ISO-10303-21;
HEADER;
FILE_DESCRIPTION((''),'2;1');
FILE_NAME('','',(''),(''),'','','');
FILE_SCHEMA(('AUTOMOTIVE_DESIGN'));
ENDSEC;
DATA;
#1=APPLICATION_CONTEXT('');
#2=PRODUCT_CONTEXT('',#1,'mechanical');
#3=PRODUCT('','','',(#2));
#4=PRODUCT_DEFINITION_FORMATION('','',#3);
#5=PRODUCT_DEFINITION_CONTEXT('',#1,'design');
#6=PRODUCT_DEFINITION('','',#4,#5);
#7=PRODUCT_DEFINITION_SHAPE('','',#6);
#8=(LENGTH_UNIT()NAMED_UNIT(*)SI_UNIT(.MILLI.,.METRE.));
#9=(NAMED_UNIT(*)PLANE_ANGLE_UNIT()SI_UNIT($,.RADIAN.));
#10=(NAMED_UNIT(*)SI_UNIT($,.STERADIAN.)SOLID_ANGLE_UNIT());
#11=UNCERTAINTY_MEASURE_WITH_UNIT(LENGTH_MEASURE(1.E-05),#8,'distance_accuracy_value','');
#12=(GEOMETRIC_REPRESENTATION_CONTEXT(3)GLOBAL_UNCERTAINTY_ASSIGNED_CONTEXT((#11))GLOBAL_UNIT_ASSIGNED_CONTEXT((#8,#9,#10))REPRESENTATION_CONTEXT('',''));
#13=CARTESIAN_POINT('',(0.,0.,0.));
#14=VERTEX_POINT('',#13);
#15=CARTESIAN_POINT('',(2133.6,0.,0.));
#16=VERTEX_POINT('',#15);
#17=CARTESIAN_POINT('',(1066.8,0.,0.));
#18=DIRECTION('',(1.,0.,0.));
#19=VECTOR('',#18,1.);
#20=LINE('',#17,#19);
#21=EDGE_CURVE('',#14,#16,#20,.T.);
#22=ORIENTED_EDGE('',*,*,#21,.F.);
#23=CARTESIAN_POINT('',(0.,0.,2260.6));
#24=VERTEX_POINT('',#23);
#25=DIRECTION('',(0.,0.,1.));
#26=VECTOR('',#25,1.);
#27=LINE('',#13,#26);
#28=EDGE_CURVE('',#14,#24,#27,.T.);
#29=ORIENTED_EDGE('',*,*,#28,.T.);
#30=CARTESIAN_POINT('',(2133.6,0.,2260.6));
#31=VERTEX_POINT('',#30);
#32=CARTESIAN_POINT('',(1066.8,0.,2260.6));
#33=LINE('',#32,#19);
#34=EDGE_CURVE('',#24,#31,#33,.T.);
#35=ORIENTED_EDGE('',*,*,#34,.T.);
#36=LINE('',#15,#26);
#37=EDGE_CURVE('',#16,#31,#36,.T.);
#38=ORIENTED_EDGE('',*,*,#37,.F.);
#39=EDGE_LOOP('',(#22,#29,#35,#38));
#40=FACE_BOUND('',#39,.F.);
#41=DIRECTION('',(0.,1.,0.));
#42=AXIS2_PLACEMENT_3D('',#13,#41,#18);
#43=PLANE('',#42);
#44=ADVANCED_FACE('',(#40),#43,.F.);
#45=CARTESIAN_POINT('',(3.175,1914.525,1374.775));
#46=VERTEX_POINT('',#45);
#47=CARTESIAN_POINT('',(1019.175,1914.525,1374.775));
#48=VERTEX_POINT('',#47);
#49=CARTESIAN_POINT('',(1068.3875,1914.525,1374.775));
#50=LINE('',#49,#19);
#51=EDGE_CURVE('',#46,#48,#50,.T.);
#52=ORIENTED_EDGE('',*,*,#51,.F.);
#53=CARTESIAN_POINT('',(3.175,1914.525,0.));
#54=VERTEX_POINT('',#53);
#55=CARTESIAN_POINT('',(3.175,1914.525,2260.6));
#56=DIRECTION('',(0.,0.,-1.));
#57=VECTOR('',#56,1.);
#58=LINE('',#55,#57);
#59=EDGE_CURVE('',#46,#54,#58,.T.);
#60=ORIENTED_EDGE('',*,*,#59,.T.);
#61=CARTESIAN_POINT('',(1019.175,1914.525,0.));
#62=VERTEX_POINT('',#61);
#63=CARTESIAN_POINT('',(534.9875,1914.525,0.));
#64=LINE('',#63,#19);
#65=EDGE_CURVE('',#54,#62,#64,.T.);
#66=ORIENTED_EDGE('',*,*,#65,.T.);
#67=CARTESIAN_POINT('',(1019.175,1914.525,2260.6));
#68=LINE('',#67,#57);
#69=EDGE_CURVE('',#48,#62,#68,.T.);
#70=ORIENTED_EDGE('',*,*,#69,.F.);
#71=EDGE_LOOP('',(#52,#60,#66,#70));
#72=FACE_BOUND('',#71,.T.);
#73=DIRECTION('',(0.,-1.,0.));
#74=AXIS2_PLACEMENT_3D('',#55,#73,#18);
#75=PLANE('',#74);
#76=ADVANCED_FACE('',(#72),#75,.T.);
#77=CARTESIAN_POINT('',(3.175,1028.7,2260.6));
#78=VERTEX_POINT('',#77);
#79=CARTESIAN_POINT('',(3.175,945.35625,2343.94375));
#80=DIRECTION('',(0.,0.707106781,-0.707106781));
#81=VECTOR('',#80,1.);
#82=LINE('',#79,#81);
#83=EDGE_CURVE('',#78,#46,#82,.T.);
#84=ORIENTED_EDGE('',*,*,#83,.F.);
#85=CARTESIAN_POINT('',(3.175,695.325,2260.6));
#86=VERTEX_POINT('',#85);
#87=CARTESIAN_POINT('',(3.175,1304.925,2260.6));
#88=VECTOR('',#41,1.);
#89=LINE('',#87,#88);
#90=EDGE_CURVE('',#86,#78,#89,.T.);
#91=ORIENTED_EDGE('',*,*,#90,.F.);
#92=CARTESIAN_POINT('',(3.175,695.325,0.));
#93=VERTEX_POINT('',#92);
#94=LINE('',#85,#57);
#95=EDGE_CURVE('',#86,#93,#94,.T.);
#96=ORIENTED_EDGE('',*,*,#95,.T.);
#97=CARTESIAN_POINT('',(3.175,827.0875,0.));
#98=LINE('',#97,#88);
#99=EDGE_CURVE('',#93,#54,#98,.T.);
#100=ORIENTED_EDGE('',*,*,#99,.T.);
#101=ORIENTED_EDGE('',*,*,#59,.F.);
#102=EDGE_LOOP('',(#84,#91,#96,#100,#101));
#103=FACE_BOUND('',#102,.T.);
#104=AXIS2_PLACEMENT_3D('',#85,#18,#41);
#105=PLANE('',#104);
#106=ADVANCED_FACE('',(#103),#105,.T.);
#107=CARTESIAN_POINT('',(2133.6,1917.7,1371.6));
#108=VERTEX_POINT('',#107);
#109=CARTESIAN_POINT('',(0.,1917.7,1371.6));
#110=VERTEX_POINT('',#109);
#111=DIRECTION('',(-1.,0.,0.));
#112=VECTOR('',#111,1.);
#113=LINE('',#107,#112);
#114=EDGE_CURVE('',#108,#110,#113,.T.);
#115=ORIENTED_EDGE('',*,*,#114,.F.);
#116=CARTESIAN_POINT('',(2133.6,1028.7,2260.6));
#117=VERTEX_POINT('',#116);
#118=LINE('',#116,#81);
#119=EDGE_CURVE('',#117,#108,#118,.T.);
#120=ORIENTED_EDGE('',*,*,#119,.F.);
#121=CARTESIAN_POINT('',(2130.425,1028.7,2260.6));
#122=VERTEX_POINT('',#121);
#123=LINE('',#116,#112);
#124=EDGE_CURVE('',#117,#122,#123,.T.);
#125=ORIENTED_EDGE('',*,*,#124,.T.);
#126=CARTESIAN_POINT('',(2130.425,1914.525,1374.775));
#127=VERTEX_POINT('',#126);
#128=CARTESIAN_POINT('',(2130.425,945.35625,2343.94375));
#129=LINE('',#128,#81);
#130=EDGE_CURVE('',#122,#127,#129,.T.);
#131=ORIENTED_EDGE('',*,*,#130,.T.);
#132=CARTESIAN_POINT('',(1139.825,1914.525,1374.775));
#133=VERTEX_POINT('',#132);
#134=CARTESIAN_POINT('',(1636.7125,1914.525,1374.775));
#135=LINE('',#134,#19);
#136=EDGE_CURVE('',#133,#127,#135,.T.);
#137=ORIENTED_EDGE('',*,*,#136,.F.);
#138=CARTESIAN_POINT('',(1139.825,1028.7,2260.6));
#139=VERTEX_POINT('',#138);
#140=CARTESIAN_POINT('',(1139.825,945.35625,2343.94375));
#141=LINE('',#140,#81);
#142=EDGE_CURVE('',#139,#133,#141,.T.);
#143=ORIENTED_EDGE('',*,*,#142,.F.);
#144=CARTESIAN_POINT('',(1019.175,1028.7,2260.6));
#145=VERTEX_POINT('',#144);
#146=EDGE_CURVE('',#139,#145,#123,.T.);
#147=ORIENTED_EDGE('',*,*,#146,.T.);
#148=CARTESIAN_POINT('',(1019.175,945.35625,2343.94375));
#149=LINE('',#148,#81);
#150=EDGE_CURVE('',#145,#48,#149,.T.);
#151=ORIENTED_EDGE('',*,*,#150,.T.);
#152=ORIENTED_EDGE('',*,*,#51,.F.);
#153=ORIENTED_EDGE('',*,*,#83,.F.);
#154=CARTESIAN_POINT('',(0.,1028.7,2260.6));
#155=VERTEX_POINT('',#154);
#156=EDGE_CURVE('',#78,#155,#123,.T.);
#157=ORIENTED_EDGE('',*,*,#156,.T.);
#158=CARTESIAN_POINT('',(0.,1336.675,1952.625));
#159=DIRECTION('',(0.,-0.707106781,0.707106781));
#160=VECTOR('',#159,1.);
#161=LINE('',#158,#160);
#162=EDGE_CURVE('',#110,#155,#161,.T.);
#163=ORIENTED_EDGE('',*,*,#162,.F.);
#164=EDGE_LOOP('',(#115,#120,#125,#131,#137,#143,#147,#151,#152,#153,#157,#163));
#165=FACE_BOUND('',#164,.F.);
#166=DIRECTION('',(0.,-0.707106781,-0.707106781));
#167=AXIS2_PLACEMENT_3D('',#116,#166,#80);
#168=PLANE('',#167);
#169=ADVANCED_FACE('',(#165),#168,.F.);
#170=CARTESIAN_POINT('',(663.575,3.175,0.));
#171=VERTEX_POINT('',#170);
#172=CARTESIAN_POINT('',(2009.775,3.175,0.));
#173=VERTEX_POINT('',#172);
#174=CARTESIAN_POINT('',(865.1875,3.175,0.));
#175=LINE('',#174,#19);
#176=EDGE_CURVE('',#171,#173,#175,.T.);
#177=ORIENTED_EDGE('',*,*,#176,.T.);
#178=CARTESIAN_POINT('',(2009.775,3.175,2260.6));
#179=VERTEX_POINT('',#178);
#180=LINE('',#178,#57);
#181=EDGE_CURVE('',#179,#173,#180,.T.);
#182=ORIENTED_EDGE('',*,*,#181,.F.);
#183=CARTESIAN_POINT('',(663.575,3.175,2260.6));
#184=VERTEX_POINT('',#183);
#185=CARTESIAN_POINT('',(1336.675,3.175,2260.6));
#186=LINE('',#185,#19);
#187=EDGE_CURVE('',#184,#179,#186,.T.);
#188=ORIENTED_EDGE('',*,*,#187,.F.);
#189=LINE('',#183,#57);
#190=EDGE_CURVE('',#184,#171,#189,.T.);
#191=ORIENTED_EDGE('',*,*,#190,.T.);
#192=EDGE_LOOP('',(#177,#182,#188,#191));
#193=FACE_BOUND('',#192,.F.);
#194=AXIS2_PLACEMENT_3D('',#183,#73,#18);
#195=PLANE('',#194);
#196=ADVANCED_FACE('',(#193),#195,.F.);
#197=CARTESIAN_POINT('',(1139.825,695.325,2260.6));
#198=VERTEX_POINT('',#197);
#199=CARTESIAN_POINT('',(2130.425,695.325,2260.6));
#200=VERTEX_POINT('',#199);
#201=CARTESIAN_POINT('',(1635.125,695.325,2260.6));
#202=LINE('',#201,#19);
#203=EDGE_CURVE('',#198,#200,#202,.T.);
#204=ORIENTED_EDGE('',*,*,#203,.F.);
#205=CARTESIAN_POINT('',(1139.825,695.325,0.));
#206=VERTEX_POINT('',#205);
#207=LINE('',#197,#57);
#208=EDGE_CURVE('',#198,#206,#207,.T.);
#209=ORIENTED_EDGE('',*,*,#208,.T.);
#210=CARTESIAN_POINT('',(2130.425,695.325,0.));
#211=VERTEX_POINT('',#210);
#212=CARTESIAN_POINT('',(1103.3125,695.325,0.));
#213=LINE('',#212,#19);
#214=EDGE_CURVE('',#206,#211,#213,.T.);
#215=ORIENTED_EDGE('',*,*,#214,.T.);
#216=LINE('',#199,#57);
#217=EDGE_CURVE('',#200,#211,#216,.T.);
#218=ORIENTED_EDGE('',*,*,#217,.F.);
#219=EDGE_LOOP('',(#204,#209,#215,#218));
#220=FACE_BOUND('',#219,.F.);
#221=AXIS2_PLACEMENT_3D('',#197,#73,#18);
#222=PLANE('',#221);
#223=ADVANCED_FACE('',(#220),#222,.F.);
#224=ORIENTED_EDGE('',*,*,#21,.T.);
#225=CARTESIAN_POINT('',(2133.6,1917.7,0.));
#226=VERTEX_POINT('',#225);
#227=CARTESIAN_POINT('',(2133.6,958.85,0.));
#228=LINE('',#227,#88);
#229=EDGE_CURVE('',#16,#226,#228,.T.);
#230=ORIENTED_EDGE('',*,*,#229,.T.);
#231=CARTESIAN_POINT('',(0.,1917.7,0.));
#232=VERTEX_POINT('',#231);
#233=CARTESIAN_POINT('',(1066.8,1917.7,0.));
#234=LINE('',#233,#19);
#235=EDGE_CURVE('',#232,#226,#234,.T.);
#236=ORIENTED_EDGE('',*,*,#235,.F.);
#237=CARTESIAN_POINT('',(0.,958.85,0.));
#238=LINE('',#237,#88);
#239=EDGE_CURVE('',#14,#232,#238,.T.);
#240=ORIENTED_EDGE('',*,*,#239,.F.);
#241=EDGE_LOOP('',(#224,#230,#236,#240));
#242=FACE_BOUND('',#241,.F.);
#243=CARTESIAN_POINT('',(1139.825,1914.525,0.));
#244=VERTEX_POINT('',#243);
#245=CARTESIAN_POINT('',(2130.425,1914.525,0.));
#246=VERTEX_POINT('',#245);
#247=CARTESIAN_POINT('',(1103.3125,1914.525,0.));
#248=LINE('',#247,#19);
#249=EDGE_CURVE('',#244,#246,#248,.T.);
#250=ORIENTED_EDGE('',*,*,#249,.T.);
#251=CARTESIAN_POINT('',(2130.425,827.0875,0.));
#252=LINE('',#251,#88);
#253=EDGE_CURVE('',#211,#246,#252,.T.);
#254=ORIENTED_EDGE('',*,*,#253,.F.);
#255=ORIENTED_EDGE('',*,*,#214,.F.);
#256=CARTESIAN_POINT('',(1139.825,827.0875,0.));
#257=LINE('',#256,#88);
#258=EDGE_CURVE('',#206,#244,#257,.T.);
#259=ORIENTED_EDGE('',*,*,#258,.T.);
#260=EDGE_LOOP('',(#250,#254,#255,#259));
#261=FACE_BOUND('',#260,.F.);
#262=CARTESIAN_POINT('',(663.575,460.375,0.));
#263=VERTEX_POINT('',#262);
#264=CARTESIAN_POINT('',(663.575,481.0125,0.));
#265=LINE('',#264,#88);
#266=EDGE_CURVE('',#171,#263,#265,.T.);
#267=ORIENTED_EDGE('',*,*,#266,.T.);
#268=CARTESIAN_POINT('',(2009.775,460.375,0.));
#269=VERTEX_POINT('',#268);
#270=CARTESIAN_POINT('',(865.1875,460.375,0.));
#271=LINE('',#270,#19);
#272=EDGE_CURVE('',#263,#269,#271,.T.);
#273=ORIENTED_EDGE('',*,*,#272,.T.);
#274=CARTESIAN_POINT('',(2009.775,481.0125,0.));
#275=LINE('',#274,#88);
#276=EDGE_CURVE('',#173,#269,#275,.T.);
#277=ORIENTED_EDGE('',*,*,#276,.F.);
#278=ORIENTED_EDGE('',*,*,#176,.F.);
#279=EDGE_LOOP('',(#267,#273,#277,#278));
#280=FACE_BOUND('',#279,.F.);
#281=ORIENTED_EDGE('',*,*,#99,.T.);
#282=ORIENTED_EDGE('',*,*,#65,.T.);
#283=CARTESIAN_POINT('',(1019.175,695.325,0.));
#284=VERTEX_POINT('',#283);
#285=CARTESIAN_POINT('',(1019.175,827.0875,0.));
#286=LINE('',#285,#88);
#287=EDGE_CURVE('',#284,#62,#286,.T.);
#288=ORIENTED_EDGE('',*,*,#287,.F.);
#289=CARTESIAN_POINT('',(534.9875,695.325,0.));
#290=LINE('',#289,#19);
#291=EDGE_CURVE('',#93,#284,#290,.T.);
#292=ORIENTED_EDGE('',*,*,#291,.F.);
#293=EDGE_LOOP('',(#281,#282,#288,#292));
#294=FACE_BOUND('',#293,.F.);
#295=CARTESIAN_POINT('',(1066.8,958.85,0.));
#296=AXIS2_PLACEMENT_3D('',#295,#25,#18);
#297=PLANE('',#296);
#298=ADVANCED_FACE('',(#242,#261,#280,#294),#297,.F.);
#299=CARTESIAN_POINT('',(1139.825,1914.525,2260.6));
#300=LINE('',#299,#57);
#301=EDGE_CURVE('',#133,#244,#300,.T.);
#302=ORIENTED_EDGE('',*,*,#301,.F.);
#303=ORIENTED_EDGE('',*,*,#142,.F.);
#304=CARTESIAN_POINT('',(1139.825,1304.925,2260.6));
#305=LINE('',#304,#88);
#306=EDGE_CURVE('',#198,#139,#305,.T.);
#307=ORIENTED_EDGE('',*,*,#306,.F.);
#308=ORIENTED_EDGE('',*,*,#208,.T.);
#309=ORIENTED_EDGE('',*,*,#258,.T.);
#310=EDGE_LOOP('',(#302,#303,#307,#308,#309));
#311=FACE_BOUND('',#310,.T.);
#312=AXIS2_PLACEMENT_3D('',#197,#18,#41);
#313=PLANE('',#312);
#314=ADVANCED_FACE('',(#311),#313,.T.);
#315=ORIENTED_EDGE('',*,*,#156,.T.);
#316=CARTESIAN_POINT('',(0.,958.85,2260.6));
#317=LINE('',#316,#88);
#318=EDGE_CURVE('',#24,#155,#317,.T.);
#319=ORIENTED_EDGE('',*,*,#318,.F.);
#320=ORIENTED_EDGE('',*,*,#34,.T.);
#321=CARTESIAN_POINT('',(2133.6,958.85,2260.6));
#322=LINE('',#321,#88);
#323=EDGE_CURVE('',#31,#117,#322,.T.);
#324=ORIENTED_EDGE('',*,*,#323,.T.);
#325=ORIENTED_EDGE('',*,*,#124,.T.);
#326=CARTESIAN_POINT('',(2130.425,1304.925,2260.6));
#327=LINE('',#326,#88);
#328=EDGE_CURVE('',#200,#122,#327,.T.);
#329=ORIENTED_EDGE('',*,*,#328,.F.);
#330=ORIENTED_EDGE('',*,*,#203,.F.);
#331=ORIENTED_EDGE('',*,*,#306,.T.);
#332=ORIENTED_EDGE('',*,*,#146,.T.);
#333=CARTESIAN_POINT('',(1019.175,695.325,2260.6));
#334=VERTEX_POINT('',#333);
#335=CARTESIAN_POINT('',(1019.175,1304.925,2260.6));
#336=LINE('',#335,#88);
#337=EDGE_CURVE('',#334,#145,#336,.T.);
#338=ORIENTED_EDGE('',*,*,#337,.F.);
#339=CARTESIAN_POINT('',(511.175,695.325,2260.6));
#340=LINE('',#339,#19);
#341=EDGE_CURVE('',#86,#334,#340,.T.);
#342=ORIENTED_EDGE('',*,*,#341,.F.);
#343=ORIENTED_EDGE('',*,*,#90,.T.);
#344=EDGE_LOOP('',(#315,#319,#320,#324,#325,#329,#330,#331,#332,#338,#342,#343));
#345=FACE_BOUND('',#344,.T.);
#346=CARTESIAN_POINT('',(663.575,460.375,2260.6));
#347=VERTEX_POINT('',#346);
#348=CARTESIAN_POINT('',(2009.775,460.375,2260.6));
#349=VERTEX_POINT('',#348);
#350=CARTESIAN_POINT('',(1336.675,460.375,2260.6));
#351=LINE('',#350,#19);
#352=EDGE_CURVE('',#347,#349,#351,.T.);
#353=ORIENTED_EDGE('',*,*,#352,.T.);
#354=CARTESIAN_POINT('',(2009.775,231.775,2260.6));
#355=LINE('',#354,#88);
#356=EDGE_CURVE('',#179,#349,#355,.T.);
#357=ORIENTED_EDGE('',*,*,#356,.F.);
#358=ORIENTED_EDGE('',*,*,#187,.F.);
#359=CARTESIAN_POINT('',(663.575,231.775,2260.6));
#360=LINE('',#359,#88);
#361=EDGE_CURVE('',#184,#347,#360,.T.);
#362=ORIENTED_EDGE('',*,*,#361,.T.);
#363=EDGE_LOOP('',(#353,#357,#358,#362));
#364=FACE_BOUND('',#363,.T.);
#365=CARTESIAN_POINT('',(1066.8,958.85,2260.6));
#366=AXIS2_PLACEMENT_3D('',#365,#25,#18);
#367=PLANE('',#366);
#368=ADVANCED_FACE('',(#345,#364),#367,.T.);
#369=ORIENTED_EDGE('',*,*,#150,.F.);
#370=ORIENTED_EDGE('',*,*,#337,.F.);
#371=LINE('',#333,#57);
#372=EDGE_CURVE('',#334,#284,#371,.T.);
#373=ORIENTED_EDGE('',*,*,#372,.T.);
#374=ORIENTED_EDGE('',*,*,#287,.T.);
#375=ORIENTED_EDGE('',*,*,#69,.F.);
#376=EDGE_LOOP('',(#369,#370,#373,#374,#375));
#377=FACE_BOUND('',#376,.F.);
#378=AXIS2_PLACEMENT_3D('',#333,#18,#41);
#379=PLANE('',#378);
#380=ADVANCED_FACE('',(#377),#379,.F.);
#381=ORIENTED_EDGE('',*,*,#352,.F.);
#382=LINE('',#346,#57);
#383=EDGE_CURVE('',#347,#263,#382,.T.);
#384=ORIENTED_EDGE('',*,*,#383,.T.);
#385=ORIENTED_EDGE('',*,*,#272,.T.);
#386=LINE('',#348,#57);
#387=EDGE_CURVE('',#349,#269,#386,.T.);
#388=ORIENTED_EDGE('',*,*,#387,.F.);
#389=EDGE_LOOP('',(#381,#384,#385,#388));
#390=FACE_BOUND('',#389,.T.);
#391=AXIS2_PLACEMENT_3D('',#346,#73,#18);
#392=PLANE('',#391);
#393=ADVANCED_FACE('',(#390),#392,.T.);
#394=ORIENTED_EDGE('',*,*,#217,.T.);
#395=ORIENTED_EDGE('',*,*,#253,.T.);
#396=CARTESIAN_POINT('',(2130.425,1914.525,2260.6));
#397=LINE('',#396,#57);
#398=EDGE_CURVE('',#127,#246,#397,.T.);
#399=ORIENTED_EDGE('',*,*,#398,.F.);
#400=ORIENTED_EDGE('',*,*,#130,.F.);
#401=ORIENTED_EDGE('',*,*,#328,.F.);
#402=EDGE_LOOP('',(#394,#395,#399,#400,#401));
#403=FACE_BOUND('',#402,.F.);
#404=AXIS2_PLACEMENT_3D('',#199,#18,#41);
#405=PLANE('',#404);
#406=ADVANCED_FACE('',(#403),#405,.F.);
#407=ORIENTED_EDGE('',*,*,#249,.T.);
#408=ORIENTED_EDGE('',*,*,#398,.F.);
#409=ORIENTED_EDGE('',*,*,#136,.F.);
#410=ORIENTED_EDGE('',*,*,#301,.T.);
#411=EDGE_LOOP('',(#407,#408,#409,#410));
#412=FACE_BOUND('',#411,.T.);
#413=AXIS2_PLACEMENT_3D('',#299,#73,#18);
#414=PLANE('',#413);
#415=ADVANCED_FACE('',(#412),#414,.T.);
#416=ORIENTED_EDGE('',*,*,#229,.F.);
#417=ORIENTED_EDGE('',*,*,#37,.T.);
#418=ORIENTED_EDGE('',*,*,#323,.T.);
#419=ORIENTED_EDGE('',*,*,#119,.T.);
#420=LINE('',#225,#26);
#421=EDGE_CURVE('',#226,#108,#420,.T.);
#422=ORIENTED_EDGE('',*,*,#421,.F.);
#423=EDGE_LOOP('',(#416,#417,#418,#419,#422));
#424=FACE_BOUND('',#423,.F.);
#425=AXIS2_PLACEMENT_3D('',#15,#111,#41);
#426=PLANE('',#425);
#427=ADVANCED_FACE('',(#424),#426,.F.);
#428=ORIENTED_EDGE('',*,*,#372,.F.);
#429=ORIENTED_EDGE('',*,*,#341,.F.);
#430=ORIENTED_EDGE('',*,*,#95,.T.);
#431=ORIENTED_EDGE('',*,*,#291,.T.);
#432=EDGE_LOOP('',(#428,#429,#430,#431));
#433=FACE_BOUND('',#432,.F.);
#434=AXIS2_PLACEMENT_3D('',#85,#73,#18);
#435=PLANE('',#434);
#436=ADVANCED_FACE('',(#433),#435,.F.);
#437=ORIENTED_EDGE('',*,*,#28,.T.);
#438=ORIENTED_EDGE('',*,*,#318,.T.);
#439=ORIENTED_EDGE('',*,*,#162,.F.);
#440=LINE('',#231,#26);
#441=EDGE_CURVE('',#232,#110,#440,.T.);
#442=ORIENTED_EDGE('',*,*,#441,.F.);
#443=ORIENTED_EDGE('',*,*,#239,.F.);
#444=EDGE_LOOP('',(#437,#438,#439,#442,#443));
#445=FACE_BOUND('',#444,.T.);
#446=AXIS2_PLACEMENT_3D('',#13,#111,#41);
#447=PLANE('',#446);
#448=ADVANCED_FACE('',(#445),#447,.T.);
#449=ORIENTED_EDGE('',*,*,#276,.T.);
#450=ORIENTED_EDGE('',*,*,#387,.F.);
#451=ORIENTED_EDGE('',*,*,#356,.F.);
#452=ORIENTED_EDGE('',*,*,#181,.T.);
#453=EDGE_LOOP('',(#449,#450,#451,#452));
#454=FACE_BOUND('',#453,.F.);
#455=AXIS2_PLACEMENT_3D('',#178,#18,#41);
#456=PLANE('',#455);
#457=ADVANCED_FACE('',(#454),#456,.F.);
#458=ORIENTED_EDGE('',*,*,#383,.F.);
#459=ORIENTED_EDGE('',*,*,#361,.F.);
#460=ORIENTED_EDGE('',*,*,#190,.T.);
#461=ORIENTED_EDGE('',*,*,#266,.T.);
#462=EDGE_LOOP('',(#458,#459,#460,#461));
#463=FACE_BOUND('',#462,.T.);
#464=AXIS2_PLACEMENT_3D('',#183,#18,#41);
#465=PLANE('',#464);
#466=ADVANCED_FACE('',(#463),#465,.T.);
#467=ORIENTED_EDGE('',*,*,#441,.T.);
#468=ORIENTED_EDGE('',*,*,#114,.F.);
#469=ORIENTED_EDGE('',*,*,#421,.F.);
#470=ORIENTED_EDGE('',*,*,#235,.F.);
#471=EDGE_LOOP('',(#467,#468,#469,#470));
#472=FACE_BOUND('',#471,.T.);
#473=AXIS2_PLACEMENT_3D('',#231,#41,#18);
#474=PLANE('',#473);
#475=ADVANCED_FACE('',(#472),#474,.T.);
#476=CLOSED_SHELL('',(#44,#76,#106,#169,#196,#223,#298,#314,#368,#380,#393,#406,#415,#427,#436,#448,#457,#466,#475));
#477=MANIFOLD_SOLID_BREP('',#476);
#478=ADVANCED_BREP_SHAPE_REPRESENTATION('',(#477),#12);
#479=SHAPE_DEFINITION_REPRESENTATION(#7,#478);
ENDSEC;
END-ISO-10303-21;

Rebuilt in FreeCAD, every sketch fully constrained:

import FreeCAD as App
import Part
import Sketcher

V = App.Vector
Q = App.Units.Quantity


def add_polygon(sketch, points):
    """Adds a closed chain of lines whose ends are joined by coincident constraints."""
    first, n = sketch.GeometryCount, len(points)
    for a, b in zip(points, points[1:] + points[:1]):
        sketch.addGeometry(Part.LineSegment(App.Vector(*a, 0), App.Vector(*b, 0)), False)
    for i in range(n):
        sketch.addConstraint(Sketcher.Constraint("Coincident", first + i, 2, first + (i + 1) % n, 1))

doc = App.newDocument("Part")
body = doc.addObject("PartDesign::Body", "Body")

sketch1 = body.newObject("Sketcher::SketchObject", "Sketch")
sketch1.AttachmentSupport = (doc.getObject("XY_Plane"), [""])
sketch1.MapMode = "FlatFace"
add_polygon(sketch1, [(0, 1918), (0, 0), (2134, 0), (2134, 1918)])
sketch1.addConstraint(Sketcher.Constraint("Vertical", 0))
sketch1.addConstraint(Sketcher.Constraint("Horizontal", 1))
sketch1.addConstraint(Sketcher.Constraint("Vertical", 2))
sketch1.addConstraint(Sketcher.Constraint("Horizontal", 3))
sketch1.addConstraint(Sketcher.Constraint("Coincident", 0, 2, -1, 1))
sketch1.addConstraint(Sketcher.Constraint("DistanceX", 1, 1, 1, 2, Q("84 in")))
sketch1.addConstraint(Sketcher.Constraint("DistanceY", 0, 2, 0, 1, Q("75.5 in")))
pad1 = body.newObject("PartDesign::Pad", "Pad")
pad1.Profile = sketch1
pad1.Length = Q("89 in")

sketch2 = body.newObject("Sketcher::SketchObject", "Sketch001")
sketch2.AttachmentSupport = (doc.getObject("XY_Plane"), [""])
sketch2.MapMode = "FlatFace"
sketch2.AttachmentOffset = App.Placement(V(0, 0, 89 * 25.4), App.Rotation())
add_polygon(sketch2, [(1140, 1915), (1140, 695), (2130, 695), (2130, 1915)])
add_polygon(sketch2, [(3, 1915), (3, 695), (1019, 695), (1019, 1915)])
sketch2.addConstraint(Sketcher.Constraint("Vertical", 0))
sketch2.addConstraint(Sketcher.Constraint("Horizontal", 1))
sketch2.addConstraint(Sketcher.Constraint("Vertical", 2))
sketch2.addConstraint(Sketcher.Constraint("Horizontal", 3))
sketch2.addConstraint(Sketcher.Constraint("Vertical", 4))
sketch2.addConstraint(Sketcher.Constraint("Horizontal", 5))
sketch2.addConstraint(Sketcher.Constraint("Vertical", 6))
sketch2.addConstraint(Sketcher.Constraint("Horizontal", 7))
sketch2.addConstraint(Sketcher.Constraint("Horizontal", 1, 2, 4, 2))
sketch2.addConstraint(Sketcher.Constraint("Horizontal", 3, 2, 6, 2))
sketch2.addConstraint(Sketcher.Constraint("DistanceX", 1, 1, 1, 2, Q("39 in")))
sketch2.addConstraint(Sketcher.Constraint("DistanceX", 5, 1, 5, 2, Q("40 in")))
sketch2.addConstraint(Sketcher.Constraint("DistanceY", 0, 2, 0, 1, Q("48 in")))
sketch2.addConstraint(Sketcher.Constraint("DistanceX", 4, 2, 0, 2, Q("44.75 in")))
sketch2.addConstraint(Sketcher.Constraint("DistanceX", -1, 1, 0, 2, Q("44.875 in")))
sketch2.addConstraint(Sketcher.Constraint("DistanceY", -1, 1, 0, 2, Q("27.375 in")))
pocket1 = body.newObject("PartDesign::Pocket", "Pocket")
pocket1.Profile = sketch2
pocket1.Type = "ThroughAll"

sketch3 = body.newObject("Sketcher::SketchObject", "Sketch002")
sketch3.AttachmentSupport = (doc.getObject("XY_Plane"), [""])
sketch3.MapMode = "FlatFace"
sketch3.AttachmentOffset = App.Placement(V(0, 0, 89 * 25.4), App.Rotation())
add_polygon(sketch3, [(664, 460), (664, 3), (2010, 3), (2010, 460)])
sketch3.addConstraint(Sketcher.Constraint("Vertical", 0))
sketch3.addConstraint(Sketcher.Constraint("Horizontal", 1))
sketch3.addConstraint(Sketcher.Constraint("Vertical", 2))
sketch3.addConstraint(Sketcher.Constraint("Horizontal", 3))
sketch3.addConstraint(Sketcher.Constraint("DistanceX", 1, 1, 1, 2, Q("53 in")))
sketch3.addConstraint(Sketcher.Constraint("DistanceY", 0, 2, 0, 1, Q("18 in")))
sketch3.addConstraint(Sketcher.Constraint("DistanceX", -1, 1, 0, 2, Q("26.125 in")))
sketch3.addConstraint(Sketcher.Constraint("DistanceY", -1, 1, 0, 2, Q("0.125 in")))
pocket2 = body.newObject("PartDesign::Pocket", "Pocket001")
pocket2.Profile = sketch3
pocket2.Type = "ThroughAll"

sketch4 = body.newObject("Sketcher::SketchObject", "Sketch003")
sketch4.AttachmentSupport = (doc.getObject("YZ_Plane"), [""])
sketch4.MapMode = "FlatFace"
sketch4.AttachmentOffset = App.Placement(V(0, 0, 84 * 25.4), App.Rotation())
add_polygon(sketch4, [(1918, 1372), (1918, 2261), (1029, 2261)])
sketch4.addConstraint(Sketcher.Constraint("Vertical", 0))
sketch4.addConstraint(Sketcher.Constraint("Horizontal", 1))
sketch4.addConstraint(Sketcher.Constraint("Equal", 1, 0))
sketch4.addConstraint(Sketcher.Constraint("DistanceX", 1, 2, 1, 1, Q("35 in")))
sketch4.addConstraint(Sketcher.Constraint("DistanceY", -1, 1, 0, 2, Q("89 in")))
sketch4.addConstraint(Sketcher.Constraint("DistanceX", -1, 1, 0, 2, Q("75.5 in")))
pocket3 = body.newObject("PartDesign::Pocket", "Pocket002")
pocket3.Profile = sketch4
pocket3.Type = "ThroughAll"

doc.recompute()
